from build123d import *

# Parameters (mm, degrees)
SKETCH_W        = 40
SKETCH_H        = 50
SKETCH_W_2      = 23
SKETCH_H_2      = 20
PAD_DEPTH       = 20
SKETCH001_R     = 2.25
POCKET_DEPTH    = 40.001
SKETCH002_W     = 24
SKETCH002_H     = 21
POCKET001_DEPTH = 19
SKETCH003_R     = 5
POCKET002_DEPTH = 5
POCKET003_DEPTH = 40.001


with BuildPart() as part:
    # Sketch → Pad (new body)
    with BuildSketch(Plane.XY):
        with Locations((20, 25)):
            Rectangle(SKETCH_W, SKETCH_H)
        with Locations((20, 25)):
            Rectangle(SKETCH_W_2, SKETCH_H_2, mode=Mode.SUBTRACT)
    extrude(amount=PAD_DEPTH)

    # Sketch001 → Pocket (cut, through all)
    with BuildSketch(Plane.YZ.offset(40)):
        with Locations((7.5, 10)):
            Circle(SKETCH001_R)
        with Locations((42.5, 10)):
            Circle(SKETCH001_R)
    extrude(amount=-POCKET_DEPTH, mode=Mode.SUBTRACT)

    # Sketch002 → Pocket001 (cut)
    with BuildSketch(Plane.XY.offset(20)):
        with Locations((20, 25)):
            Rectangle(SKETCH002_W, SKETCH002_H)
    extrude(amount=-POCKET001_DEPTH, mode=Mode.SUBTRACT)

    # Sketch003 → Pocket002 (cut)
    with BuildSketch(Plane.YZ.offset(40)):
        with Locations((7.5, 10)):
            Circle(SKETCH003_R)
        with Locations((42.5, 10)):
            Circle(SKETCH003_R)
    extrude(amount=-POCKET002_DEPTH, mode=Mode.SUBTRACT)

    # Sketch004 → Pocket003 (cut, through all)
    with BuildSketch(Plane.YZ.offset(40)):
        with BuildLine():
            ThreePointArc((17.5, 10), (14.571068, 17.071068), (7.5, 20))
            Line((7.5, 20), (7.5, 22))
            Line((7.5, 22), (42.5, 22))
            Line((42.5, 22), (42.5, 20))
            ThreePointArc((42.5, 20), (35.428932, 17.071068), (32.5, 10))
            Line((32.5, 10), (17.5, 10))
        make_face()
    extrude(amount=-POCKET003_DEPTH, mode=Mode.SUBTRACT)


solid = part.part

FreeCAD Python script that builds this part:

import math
import FreeCAD as App
import Part
import Sketcher
Q = App.Units.Quantity


def add_polygon(sketch, points):
    """Adds a closed chain of lines whose ends are joined by coincident constraints."""
    first, n = sketch.GeometryCount, len(points)
    for a, b in zip(points, points[1:] + points[:1]):
        sketch.addGeometry(Part.LineSegment(App.Vector(*a, 0), App.Vector(*b, 0)), False)
    for i in range(n):
        sketch.addConstraint(Sketcher.Constraint("Coincident", first + i, 2, first + (i + 1) % n, 1))

doc = App.newDocument("Part")
body = doc.addObject("PartDesign::Body", "Body")

sketch1 = body.newObject("Sketcher::SketchObject", "Sketch")
sketch1.AttachmentSupport = (doc.getObject("XY_Plane"), [""])
sketch1.MapMode = "FlatFace"
add_polygon(sketch1, [(0, 50), (0, 0), (40, 0), (40, 50)])
add_polygon(sketch1, [(32, 15), (8, 15), (8, 35), (32, 35)])
sketch1.addConstraint([
    Sketcher.Constraint("Vertical", 0),
    Sketcher.Constraint("Horizontal", 1),
    Sketcher.Constraint("Vertical", 2),
    Sketcher.Constraint("Horizontal", 3),
    Sketcher.Constraint("Horizontal", 4),
    Sketcher.Constraint("Vertical", 5),
    Sketcher.Constraint("Horizontal", 6),
    Sketcher.Constraint("Vertical", 7),
    Sketcher.Constraint("Coincident", 0, 2, -1, 1),
    Sketcher.Constraint("DistanceX", 1, 1, 1, 2, Q("40 mm")),
    Sketcher.Constraint("DistanceX", 4, 2, 4, 1, Q("23 mm")),
    Sketcher.Constraint("DistanceY", 0, 2, 0, 1, Q("50 mm")),
    Sketcher.Constraint("DistanceY", 5, 1, 5, 2, Q("20 mm")),
    Sketcher.Constraint("DistanceY", -1, 1, 4, 2, Q("15 mm")),
    Sketcher.Constraint("DistanceX", -1, 1, 4, 2, Q("8.5 mm")),
])
pad1 = body.newObject("PartDesign::Pad", "Pad")
pad1.Profile = sketch1
pad1.Length = 20

sketch2 = body.newObject("Sketcher::SketchObject", "Sketch001")
sketch2.AttachmentSupport = (doc.getObject("YZ_Plane"), [""])
sketch2.MapMode = "FlatFace"
sketch2.AttachmentOffset = App.Placement(App.Vector(0, 0, 40), App.Rotation())
sketch2.addGeometry([
    Part.Circle(App.Vector(7.5, 10, 0), App.Vector(0, 0, 1), 2.2),
    Part.Circle(App.Vector(42.5, 10, 0), App.Vector(0, 0, 1), 2.2),
], False)
sketch2.addConstraint([
    Sketcher.Constraint("Equal", 0, 1),
    Sketcher.Constraint("Horizontal", 0, 3, 1, 3),
    Sketcher.Constraint("Diameter", 0, Q("4.5 mm")),
    Sketcher.Constraint("DistanceY", -1, 1, 0, 3, Q("10 mm")),
    Sketcher.Constraint("DistanceX", 0, 3, 1, 3, Q("35 mm")),
    Sketcher.Constraint("DistanceX", -1, 1, 0, 3, Q("7.5 mm")),
])
pocket1 = body.newObject("PartDesign::Pocket", "Pocket")
pocket1.Profile = sketch2
pocket1.Type = "ThroughAll"

sketch3 = body.newObject("Sketcher::SketchObject", "Sketch002")
sketch3.AttachmentSupport = (doc.getObject("XY_Plane"), [""])
sketch3.MapMode = "FlatFace"
sketch3.AttachmentOffset = App.Placement(App.Vector(0, 0, 20), App.Rotation())
add_polygon(sketch3, [(8, 36), (8, 14), (32, 14), (32, 36)])
sketch3.addConstraint([
    Sketcher.Constraint("Vertical", 0),
    Sketcher.Constraint("Horizontal", 1),
    Sketcher.Constraint("Vertical", 2),
    Sketcher.Constraint("Horizontal", 3),
    Sketcher.Constraint("DistanceX", 1, 1, 1, 2, Q("24 mm")),
    Sketcher.Constraint("DistanceY", 0, 2, 0, 1, Q("21 mm")),
    Sketcher.Constraint("DistanceX", -1, 1, 0, 2, Q("8 mm")),
    Sketcher.Constraint("DistanceY", -1, 1, 0, 2, Q("14.5 mm")),
])
pocket2 = body.newObject("PartDesign::Pocket", "Pocket001")
pocket2.Profile = sketch3
pocket2.Length = 19

sketch4 = body.newObject("Sketcher::SketchObject", "Sketch003")
sketch4.AttachmentSupport = (doc.getObject("YZ_Plane"), [""])
sketch4.MapMode = "FlatFace"
sketch4.AttachmentOffset = App.Placement(App.Vector(0, 0, 40), App.Rotation())
sketch4.addGeometry([
    Part.Circle(App.Vector(8, 10, 0), App.Vector(0, 0, 1), 5),
    Part.Circle(App.Vector(42, 10, 0), App.Vector(0, 0, 1), 5),
], False)
sketch4.addConstraint([
    Sketcher.Constraint("Equal", 0, 1),
    Sketcher.Constraint("Horizontal", 0, 3, 1, 3),
    Sketcher.Constraint("Diameter", 0, Q("10 mm")),
    Sketcher.Constraint("DistanceY", -1, 1, 0, 3, Q("10 mm")),
    Sketcher.Constraint("DistanceX", 0, 3, 1, 3, Q("35 mm")),
    Sketcher.Constraint("DistanceX", -1, 1, 0, 3, Q("7.5 mm")),
])
pocket3 = body.newObject("PartDesign::Pocket", "Pocket002")
pocket3.Profile = sketch4
pocket3.Length = 5

sketch5 = body.newObject("Sketcher::SketchObject", "Sketch004")
sketch5.AttachmentSupport = (doc.getObject("YZ_Plane"), [""])
sketch5.MapMode = "FlatFace"
sketch5.AttachmentOffset = App.Placement(App.Vector(0, 0, 40), App.Rotation())
sketch5.addGeometry([
    Part.ArcOfCircle(Part.Circle(App.Vector(7.5, 10, 0), App.Vector(0, 0, 1), 10), math.radians(0), math.radians(90)),
    Part.LineSegment(App.Vector(17.5, 10, 0), App.Vector(32.5, 10, 0)),
    Part.ArcOfCircle(Part.Circle(App.Vector(42.5, 10, 0), App.Vector(0, 0, 1), 10), math.radians(90), math.radians(180)),
    Part.LineSegment(App.Vector(42.5, 20, 0), App.Vector(42.5, 22, 0)),
    Part.LineSegment(App.Vector(42.5, 22, 0), App.Vector(7.5, 22, 0)),
    Part.LineSegment(App.Vector(7.5, 22, 0), App.Vector(7.5, 20, 0)),
], False)
sketch5.addConstraint([
    Sketcher.Constraint("Coincident", 0, 1, 1, 1),
    Sketcher.Constraint("Coincident", 1, 2, 2, 2),
    Sketcher.Constraint("Coincident", 2, 1, 3, 1),
    Sketcher.Constraint("Coincident", 3, 2, 4, 1),
    Sketcher.Constraint("Coincident", 4, 2, 5, 1),
    Sketcher.Constraint("Coincident", 5, 2, 0, 2),
    Sketcher.Constraint("Horizontal", 1),
    Sketcher.Constraint("Vertical", 3),
    Sketcher.Constraint("Horizontal", 4),
    Sketcher.Constraint("Vertical", 5),
    Sketcher.Constraint("Equal", 0, 2),
    Sketcher.Constraint("Horizontal", 0, 3, 2, 3),
    Sketcher.Constraint("Horizontal", 2, 3, 0, 1),
    Sketcher.Constraint("Vertical", 0, 3, 4, 2),
    Sketcher.Constraint("Radius", 0, Q("9.999999 mm")),
    Sketcher.Constraint("DistanceX", 1, 1, 1, 2, Q("15 mm")),
    Sketcher.Constraint("DistanceX", 4, 2, 4, 1, Q("35 mm")),
    Sketcher.Constraint("DistanceY", 3, 1, 3, 2, Q("2 mm")),
    Sketcher.Constraint("DistanceY", -1, 1, 0, 3, Q("10.000001 mm")),
    Sketcher.Constraint("DistanceX", -1, 1, 0, 3, Q("7.500001 mm")),
])
pocket4 = body.newObject("PartDesign::Pocket", "Pocket003")
pocket4.Profile = sketch5
pocket4.Type = "ThroughAll"

doc.recompute()
